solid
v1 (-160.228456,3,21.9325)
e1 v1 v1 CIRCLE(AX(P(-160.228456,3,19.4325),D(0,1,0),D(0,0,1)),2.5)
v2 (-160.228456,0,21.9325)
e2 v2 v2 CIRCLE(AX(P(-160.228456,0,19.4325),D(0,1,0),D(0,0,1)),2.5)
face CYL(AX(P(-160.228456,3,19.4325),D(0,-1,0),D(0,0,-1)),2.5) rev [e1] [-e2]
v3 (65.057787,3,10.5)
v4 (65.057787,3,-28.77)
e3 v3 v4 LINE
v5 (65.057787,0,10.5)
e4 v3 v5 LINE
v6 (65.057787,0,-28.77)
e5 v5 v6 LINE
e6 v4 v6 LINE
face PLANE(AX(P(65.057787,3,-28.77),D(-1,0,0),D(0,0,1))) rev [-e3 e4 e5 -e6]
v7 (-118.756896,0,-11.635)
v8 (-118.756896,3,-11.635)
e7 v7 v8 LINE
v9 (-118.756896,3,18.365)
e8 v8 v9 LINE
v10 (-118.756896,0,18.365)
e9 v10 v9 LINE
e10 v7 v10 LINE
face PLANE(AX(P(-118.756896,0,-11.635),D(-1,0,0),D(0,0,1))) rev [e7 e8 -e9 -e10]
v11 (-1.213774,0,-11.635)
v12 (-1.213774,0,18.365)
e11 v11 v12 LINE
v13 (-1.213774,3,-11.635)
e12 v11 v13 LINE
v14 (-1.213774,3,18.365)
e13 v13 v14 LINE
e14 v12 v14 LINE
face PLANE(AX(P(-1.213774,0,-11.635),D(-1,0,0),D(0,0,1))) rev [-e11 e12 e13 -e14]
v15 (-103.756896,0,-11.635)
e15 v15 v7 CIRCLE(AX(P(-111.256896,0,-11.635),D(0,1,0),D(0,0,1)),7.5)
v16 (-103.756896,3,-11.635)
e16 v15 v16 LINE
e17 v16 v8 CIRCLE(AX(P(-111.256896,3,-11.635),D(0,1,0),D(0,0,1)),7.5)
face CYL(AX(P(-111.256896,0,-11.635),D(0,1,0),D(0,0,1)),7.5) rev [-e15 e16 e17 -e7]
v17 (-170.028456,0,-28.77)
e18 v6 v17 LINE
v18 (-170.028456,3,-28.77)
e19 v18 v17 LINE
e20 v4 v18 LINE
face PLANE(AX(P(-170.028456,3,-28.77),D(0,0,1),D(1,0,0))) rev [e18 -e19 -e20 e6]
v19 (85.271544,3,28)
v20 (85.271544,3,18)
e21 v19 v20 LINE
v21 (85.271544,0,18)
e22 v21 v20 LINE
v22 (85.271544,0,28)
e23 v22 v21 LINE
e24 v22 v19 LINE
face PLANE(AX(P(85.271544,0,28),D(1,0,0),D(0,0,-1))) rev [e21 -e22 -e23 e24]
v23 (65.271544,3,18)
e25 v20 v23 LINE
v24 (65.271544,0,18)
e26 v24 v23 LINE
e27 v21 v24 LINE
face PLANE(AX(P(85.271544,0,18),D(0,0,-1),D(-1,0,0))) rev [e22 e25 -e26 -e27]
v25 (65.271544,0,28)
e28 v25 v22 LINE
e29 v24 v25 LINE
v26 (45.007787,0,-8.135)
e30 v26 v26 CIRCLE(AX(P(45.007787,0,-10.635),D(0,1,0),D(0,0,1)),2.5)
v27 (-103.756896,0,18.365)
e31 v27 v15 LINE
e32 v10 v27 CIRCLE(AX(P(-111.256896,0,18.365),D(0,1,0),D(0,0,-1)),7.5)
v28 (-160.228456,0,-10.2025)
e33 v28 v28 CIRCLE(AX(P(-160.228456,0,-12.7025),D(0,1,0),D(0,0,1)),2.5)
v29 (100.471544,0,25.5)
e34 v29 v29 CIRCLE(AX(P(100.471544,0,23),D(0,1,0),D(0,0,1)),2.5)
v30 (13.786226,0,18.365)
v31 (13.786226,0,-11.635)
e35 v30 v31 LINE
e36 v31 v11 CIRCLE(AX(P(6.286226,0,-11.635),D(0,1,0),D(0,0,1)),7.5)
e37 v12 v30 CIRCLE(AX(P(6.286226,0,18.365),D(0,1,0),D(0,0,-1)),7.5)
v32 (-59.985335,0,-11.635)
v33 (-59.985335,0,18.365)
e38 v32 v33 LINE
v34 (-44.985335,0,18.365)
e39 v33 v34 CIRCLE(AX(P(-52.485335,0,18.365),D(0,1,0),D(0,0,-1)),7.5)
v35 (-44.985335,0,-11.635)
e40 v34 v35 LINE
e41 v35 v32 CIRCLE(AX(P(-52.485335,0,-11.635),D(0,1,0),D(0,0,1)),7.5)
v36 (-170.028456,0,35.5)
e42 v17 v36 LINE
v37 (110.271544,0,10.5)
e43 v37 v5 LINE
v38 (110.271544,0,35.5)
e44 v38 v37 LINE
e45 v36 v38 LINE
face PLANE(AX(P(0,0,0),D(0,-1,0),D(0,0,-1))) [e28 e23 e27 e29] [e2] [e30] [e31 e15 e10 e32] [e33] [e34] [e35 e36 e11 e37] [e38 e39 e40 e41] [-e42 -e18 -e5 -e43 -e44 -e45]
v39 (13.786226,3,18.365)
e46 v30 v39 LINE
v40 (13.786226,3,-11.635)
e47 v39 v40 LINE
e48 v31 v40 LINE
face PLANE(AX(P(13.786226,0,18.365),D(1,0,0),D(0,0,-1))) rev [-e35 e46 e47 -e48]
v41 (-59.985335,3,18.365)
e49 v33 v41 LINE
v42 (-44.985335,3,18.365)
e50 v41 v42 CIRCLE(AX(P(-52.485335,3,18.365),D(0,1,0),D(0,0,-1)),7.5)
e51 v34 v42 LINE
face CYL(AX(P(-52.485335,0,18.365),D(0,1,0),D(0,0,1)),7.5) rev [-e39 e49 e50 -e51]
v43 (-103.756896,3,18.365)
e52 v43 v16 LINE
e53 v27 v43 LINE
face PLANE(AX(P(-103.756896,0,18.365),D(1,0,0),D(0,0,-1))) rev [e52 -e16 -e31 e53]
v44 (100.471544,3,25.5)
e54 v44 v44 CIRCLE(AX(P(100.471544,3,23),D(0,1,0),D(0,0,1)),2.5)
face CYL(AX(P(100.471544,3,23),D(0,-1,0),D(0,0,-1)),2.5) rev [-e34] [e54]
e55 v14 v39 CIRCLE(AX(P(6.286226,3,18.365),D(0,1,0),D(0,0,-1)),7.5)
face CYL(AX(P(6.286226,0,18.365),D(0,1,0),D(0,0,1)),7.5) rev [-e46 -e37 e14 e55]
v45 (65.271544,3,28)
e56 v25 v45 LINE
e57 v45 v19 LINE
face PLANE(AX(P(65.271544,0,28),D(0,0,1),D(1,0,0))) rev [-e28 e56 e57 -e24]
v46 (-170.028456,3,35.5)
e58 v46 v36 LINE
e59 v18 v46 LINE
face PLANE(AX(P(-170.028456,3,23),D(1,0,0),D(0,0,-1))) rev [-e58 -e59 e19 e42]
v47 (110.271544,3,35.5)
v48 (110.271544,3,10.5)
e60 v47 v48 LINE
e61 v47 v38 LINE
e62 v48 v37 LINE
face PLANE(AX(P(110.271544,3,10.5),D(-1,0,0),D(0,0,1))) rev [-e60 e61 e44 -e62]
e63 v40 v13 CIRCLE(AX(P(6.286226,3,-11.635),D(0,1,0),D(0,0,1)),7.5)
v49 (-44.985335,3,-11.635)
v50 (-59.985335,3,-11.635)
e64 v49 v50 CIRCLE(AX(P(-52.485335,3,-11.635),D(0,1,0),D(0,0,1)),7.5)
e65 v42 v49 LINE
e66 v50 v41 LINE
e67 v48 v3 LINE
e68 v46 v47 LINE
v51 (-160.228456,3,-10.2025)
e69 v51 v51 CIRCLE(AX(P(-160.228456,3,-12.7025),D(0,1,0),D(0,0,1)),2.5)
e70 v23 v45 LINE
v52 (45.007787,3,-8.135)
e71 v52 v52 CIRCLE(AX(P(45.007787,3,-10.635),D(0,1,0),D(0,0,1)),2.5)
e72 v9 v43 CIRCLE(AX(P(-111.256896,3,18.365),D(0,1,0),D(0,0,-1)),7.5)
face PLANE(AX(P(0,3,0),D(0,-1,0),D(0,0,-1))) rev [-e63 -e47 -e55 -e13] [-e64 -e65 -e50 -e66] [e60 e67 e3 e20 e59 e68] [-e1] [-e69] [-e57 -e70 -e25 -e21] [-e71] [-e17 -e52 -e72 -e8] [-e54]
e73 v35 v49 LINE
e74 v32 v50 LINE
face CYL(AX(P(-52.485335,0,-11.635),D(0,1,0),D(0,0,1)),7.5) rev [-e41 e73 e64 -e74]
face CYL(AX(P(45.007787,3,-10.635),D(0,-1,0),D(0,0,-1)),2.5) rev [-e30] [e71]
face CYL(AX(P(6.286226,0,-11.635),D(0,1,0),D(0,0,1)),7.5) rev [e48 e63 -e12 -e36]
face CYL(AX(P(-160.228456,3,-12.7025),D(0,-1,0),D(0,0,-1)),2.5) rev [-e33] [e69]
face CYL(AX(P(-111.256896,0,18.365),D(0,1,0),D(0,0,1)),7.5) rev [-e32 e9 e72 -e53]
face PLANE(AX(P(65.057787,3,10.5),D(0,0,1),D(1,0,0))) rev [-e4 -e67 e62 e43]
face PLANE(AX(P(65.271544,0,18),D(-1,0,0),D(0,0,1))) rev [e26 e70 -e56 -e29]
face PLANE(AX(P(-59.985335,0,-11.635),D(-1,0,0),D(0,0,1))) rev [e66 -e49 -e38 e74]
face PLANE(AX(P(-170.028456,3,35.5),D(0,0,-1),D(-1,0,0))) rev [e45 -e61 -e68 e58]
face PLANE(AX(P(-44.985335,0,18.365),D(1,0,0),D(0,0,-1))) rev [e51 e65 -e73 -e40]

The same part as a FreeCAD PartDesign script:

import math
import FreeCAD as App
import Part
import Sketcher
from FreeCAD import Vector

doc = App.newDocument("Part")
params = doc.addObject("Spreadsheet::Sheet", "Params")
for row, (alias, value) in enumerate([
    ("sketch1_diameter", "5 mm"),
    ("sketch1_height", "25 mm"),
    ("sketch1_width", "280.3 mm"),
    ("sketch1_height2", "39.27 mm"),
    ("pad1_length", "3 mm"),
    ("sketch2_radius", "7.5 mm"),
    ("sketch2_width", "20 mm"),
    ("sketch2_height", "30 mm"),
    ("sketch2_height2", "10 mm"),
], start=1):
    params.set(f"A{row}", alias)
    params.set(f"B{row}", "=" + value)
    params.setAlias(f"B{row}", alias)

body = doc.addObject("PartDesign::Body", "Body")

# Sketch on XZ plane
sketch1 = body.newObject("Sketcher::SketchObject", "Sketch")
sketch1.AttachmentSupport = (doc.getObject("XZ_Plane"), [""])
sketch1.MapMode = "FlatFace"
sketch1.addGeometry(Part.LineSegment(Vector(-170, 35.5, 0), Vector(110.3, 35.5, 0)), False)
sketch1.addGeometry(Part.LineSegment(Vector(110.3, 35.5, 0), Vector(110.3, 10.5, 0)), False)
sketch1.addGeometry(Part.LineSegment(Vector(110.3, 10.5, 0), Vector(65.1, 10.5, 0)), False)
sketch1.addGeometry(Part.LineSegment(Vector(65.1, 10.5, 0), Vector(65.1, -28.8, 0)), False)
sketch1.addGeometry(Part.LineSegment(Vector(65.1, -28.8, 0), Vector(-170, -28.8, 0)), False)
sketch1.addGeometry(Part.LineSegment(Vector(-170, -28.8, 0), Vector(-170, 35.5, 0)), False)
sketch1.addGeometry(Part.Circle(Vector(-160.2, 19.4, 0), Vector(0, 0, 1), 2.5), False)
sketch1.addGeometry(Part.Circle(Vector(100.5, 23, 0), Vector(0, 0, 1), 2.5), False)
sketch1.addGeometry(Part.Circle(Vector(-160.2, -12.7, 0), Vector(0, 0, 1), 2.5), False)
sketch1.addGeometry(Part.Circle(Vector(45, -10.6, 0), Vector(0, 0, 1), 2.5), False)
sketch1.addConstraint(Sketcher.Constraint("Coincident", 0, 2, 1, 1))
sketch1.addConstraint(Sketcher.Constraint("Coincident", 1, 2, 2, 1))
sketch1.addConstraint(Sketcher.Constraint("Coincident", 2, 2, 3, 1))
sketch1.addConstraint(Sketcher.Constraint("Coincident", 3, 2, 4, 1))
sketch1.addConstraint(Sketcher.Constraint("Coincident", 4, 2, 5, 1))
sketch1.addConstraint(Sketcher.Constraint("Coincident", 5, 2, 0, 1))
sketch1.addConstraint(Sketcher.Constraint("Horizontal", 0))
sketch1.addConstraint(Sketcher.Constraint("Vertical", 1))
sketch1.addConstraint(Sketcher.Constraint("Horizontal", 2))
sketch1.addConstraint(Sketcher.Constraint("Vertical", 3))
sketch1.addConstraint(Sketcher.Constraint("Horizontal", 4))
sketch1.addConstraint(Sketcher.Constraint("Vertical", 5))
sketch1.addConstraint(Sketcher.Constraint("Equal", 6, 7))
sketch1.addConstraint(Sketcher.Constraint("Equal", 7, 8))
sketch1.addConstraint(Sketcher.Constraint("Equal", 8, 9))
sketch1.addConstraint(Sketcher.Constraint("Vertical", 6, 3, 8, 3))
sketch1.addConstraint(Sketcher.Constraint("Diameter", 6, 5.0))
sketch1.addConstraint(Sketcher.Constraint("DistanceY", 1, 2, 1, 1, 25.0))
sketch1.addConstraint(Sketcher.Constraint("DistanceX", 0, 1, 0, 2, 280.3))
sketch1.addConstraint(Sketcher.Constraint("DistanceY", -1, 1, 7, 3, 23.0))
sketch1.addConstraint(Sketcher.Constraint("DistanceY", 3, 2, 3, 1, 39.27))
sketch1.addConstraint(Sketcher.Constraint("DistanceY", -1, 1, 0, 2, 35.5))
sketch1.addConstraint(Sketcher.Constraint("DistanceX", 6, 3, 7, 3, 260.7))
sketch1.addConstraint(Sketcher.Constraint("DistanceX", 7, 3, 0, 2, 9.8))
sketch1.addConstraint(Sketcher.Constraint("DistanceX", 9, 3, 2, 2, 20.05))
sketch1.addConstraint(Sketcher.Constraint("DistanceY", 9, 3, -1, 1, 10.635))
sketch1.addConstraint(Sketcher.Constraint("DistanceY", 8, 3, 6, 3, 32.135))
sketch1.addConstraint(Sketcher.Constraint("DistanceY", -1, 1, 6, 3, 19.4325))
sketch1.addConstraint(Sketcher.Constraint("DistanceX", 2, 2, 2, 1, 45.213757))
sketch1.addConstraint(Sketcher.Constraint("DistanceX", 6, 3, -1, 1, 160.228456))
sketch1.setExpression("Constraints[16]", "Params.sketch1_diameter")
sketch1.setExpression("Constraints[17]", "Params.sketch1_height")
sketch1.setExpression("Constraints[18]", "Params.sketch1_width")
sketch1.setExpression("Constraints[20]", "Params.sketch1_height2")
pad1 = body.newObject("PartDesign::Pad", "Pad")
pad1.Profile = sketch1
pad1.setExpression("Length", "Params.pad1_length")
pad1.Reversed = True

# Sketch on XZ plane
sketch2 = body.newObject("Sketcher::SketchObject", "Sketch001")
sketch2.AttachmentSupport = (doc.getObject("XZ_Plane"), [""])
sketch2.MapMode = "FlatFace"
sketch2.AttachmentOffset = App.Placement(Vector(0, 0, -3), App.Rotation())
sketch2.addGeometry(Part.LineSegment(Vector(-119, -12, 0), Vector(-119, 18, 0)), False)
sketch2.addGeometry(Part.ArcOfCircle(Part.Circle(Vector(-111, 18, 0), Vector(0, 0, 1), 8), math.radians(0), math.radians(180)), False)
sketch2.addGeometry(Part.LineSegment(Vector(-104, 18, 0), Vector(-104, -12, 0)), False)
sketch2.addGeometry(Part.ArcOfCircle(Part.Circle(Vector(-111, -12, 0), Vector(0, 0, 1), 8), math.radians(180), math.radians(360)), False)
sketch2.addGeometry(Part.LineSegment(Vector(-60, -12, 0), Vector(-60, 18, 0)), False)
sketch2.addGeometry(Part.ArcOfCircle(Part.Circle(Vector(-52, 18, 0), Vector(0, 0, 1), 8), math.radians(0), math.radians(180)), False)
sketch2.addGeometry(Part.LineSegment(Vector(-45, 18, 0), Vector(-45, -12, 0)), False)
sketch2.addGeometry(Part.ArcOfCircle(Part.Circle(Vector(-52, -12, 0), Vector(0, 0, 1), 8), math.radians(180), math.radians(360)), False)
sketch2.addGeometry(Part.LineSegment(Vector(-1, -12, 0), Vector(-1, 18, 0)), False)
sketch2.addGeometry(Part.ArcOfCircle(Part.Circle(Vector(6, 18, 0), Vector(0, 0, 1), 8), math.radians(0), math.radians(180)), False)
sketch2.addGeometry(Part.LineSegment(Vector(14, 18, 0), Vector(14, -12, 0)), False)
sketch2.addGeometry(Part.ArcOfCircle(Part.Circle(Vector(6, -12, 0), Vector(0, 0, 1), 8), math.radians(180), math.radians(360)), False)
sketch2.addGeometry(Part.LineSegment(Vector(65, 18, 0), Vector(65, 28, 0)), False)
sketch2.addGeometry(Part.LineSegment(Vector(65, 28, 0), Vector(85, 28, 0)), False)
sketch2.addGeometry(Part.LineSegment(Vector(85, 28, 0), Vector(85, 18, 0)), False)
sketch2.addGeometry(Part.LineSegment(Vector(85, 18, 0), Vector(65, 18, 0)), False)
sketch2.addConstraint(Sketcher.Constraint("Tangent", 0, 2, 1, 2))
sketch2.addConstraint(Sketcher.Constraint("Tangent", 1, 1, 2, 1))
sketch2.addConstraint(Sketcher.Constraint("Tangent", 2, 2, 3, 2))
sketch2.addConstraint(Sketcher.Constraint("Tangent", 3, 1, 0, 1))
sketch2.addConstraint(Sketcher.Constraint("Tangent", 4, 2, 5, 2))
sketch2.addConstraint(Sketcher.Constraint("Tangent", 5, 1, 6, 1))
sketch2.addConstraint(Sketcher.Constraint("Tangent", 6, 2, 7, 2))
sketch2.addConstraint(Sketcher.Constraint("Tangent", 7, 1, 4, 1))
sketch2.addConstraint(Sketcher.Constraint("Tangent", 8, 2, 9, 2))
sketch2.addConstraint(Sketcher.Constraint("Tangent", 9, 1, 10, 1))
sketch2.addConstraint(Sketcher.Constraint("Tangent", 10, 2, 11, 2))
sketch2.addConstraint(Sketcher.Constraint("Tangent", 11, 1, 8, 1))
sketch2.addConstraint(Sketcher.Constraint("Coincident", 12, 2, 13, 1))
sketch2.addConstraint(Sketcher.Constraint("Coincident", 13, 2, 14, 1))
sketch2.addConstraint(Sketcher.Constraint("Coincident", 14, 2, 15, 1))
sketch2.addConstraint(Sketcher.Constraint("Coincident", 15, 2, 12, 1))
sketch2.addConstraint(Sketcher.Constraint("Vertical", 0))
sketch2.addConstraint(Sketcher.Constraint("Vertical", 2))
sketch2.addConstraint(Sketcher.Constraint("Vertical", 4))
sketch2.addConstraint(Sketcher.Constraint("Vertical", 6))
sketch2.addConstraint(Sketcher.Constraint("Vertical", 8))
sketch2.addConstraint(Sketcher.Constraint("Vertical", 10))
sketch2.addConstraint(Sketcher.Constraint("Vertical", 12))
sketch2.addConstraint(Sketcher.Constraint("Horizontal", 13))
sketch2.addConstraint(Sketcher.Constraint("Vertical", 14))
sketch2.addConstraint(Sketcher.Constraint("Horizontal", 15))
sketch2.addConstraint(Sketcher.Constraint("Equal", 3, 5))
sketch2.addConstraint(Sketcher.Constraint("Equal", 7, 9))
sketch2.addConstraint(Sketcher.Constraint("Horizontal", 1, 3, 5, 3))
sketch2.addConstraint(Sketcher.Constraint("Horizontal", 3, 3, 7, 3))
sketch2.addConstraint(Sketcher.Constraint("Horizontal", 5, 3, 9, 3))
sketch2.addConstraint(Sketcher.Constraint("Horizontal", 7, 3, 11, 3))
sketch2.addConstraint(Sketcher.Constraint("Radius", 1, 7.5))
sketch2.addConstraint(Sketcher.Constraint("DistanceX", 13, 1, 13, 2, 20.0))
sketch2.addConstraint(Sketcher.Constraint("DistanceY", 0, 1, 0, 2, 30.0))
sketch2.addConstraint(Sketcher.Constraint("DistanceY", 12, 1, 12, 2, 10.0))
sketch2.addConstraint(Sketcher.Constraint("DistanceY", -1, 1, 12, 2, 28.0))
sketch2.addConstraint(Sketcher.Constraint("DistanceY", -1, 1, 1, 3, 18.365))
sketch2.addConstraint(Sketcher.Constraint("DistanceX", 1, 3, 5, 3, 58.771561))
sketch2.addConstraint(Sketcher.Constraint("DistanceX", 5, 3, 9, 3, 58.771561))
sketch2.addConstraint(Sketcher.Constraint("DistanceX", 1, 3, -1, 1, 111.256896))
sketch2.addConstraint(Sketcher.Constraint("DistanceX", -1, 1, 12, 2, 65.271544))
sketch2.setExpression("Constraints[32]", "Params.sketch2_radius")
sketch2.setExpression("Constraints[33]", "Params.sketch2_width")
sketch2.setExpression("Constraints[34]", "Params.sketch2_height")
sketch2.setExpression("Constraints[35]", "Params.sketch2_height2")
pocket1 = body.newObject("PartDesign::Pocket", "Pocket")
pocket1.Profile = sketch2
pocket1.Type = "ThroughAll"
pocket1.Reversed = True

doc.recompute()
